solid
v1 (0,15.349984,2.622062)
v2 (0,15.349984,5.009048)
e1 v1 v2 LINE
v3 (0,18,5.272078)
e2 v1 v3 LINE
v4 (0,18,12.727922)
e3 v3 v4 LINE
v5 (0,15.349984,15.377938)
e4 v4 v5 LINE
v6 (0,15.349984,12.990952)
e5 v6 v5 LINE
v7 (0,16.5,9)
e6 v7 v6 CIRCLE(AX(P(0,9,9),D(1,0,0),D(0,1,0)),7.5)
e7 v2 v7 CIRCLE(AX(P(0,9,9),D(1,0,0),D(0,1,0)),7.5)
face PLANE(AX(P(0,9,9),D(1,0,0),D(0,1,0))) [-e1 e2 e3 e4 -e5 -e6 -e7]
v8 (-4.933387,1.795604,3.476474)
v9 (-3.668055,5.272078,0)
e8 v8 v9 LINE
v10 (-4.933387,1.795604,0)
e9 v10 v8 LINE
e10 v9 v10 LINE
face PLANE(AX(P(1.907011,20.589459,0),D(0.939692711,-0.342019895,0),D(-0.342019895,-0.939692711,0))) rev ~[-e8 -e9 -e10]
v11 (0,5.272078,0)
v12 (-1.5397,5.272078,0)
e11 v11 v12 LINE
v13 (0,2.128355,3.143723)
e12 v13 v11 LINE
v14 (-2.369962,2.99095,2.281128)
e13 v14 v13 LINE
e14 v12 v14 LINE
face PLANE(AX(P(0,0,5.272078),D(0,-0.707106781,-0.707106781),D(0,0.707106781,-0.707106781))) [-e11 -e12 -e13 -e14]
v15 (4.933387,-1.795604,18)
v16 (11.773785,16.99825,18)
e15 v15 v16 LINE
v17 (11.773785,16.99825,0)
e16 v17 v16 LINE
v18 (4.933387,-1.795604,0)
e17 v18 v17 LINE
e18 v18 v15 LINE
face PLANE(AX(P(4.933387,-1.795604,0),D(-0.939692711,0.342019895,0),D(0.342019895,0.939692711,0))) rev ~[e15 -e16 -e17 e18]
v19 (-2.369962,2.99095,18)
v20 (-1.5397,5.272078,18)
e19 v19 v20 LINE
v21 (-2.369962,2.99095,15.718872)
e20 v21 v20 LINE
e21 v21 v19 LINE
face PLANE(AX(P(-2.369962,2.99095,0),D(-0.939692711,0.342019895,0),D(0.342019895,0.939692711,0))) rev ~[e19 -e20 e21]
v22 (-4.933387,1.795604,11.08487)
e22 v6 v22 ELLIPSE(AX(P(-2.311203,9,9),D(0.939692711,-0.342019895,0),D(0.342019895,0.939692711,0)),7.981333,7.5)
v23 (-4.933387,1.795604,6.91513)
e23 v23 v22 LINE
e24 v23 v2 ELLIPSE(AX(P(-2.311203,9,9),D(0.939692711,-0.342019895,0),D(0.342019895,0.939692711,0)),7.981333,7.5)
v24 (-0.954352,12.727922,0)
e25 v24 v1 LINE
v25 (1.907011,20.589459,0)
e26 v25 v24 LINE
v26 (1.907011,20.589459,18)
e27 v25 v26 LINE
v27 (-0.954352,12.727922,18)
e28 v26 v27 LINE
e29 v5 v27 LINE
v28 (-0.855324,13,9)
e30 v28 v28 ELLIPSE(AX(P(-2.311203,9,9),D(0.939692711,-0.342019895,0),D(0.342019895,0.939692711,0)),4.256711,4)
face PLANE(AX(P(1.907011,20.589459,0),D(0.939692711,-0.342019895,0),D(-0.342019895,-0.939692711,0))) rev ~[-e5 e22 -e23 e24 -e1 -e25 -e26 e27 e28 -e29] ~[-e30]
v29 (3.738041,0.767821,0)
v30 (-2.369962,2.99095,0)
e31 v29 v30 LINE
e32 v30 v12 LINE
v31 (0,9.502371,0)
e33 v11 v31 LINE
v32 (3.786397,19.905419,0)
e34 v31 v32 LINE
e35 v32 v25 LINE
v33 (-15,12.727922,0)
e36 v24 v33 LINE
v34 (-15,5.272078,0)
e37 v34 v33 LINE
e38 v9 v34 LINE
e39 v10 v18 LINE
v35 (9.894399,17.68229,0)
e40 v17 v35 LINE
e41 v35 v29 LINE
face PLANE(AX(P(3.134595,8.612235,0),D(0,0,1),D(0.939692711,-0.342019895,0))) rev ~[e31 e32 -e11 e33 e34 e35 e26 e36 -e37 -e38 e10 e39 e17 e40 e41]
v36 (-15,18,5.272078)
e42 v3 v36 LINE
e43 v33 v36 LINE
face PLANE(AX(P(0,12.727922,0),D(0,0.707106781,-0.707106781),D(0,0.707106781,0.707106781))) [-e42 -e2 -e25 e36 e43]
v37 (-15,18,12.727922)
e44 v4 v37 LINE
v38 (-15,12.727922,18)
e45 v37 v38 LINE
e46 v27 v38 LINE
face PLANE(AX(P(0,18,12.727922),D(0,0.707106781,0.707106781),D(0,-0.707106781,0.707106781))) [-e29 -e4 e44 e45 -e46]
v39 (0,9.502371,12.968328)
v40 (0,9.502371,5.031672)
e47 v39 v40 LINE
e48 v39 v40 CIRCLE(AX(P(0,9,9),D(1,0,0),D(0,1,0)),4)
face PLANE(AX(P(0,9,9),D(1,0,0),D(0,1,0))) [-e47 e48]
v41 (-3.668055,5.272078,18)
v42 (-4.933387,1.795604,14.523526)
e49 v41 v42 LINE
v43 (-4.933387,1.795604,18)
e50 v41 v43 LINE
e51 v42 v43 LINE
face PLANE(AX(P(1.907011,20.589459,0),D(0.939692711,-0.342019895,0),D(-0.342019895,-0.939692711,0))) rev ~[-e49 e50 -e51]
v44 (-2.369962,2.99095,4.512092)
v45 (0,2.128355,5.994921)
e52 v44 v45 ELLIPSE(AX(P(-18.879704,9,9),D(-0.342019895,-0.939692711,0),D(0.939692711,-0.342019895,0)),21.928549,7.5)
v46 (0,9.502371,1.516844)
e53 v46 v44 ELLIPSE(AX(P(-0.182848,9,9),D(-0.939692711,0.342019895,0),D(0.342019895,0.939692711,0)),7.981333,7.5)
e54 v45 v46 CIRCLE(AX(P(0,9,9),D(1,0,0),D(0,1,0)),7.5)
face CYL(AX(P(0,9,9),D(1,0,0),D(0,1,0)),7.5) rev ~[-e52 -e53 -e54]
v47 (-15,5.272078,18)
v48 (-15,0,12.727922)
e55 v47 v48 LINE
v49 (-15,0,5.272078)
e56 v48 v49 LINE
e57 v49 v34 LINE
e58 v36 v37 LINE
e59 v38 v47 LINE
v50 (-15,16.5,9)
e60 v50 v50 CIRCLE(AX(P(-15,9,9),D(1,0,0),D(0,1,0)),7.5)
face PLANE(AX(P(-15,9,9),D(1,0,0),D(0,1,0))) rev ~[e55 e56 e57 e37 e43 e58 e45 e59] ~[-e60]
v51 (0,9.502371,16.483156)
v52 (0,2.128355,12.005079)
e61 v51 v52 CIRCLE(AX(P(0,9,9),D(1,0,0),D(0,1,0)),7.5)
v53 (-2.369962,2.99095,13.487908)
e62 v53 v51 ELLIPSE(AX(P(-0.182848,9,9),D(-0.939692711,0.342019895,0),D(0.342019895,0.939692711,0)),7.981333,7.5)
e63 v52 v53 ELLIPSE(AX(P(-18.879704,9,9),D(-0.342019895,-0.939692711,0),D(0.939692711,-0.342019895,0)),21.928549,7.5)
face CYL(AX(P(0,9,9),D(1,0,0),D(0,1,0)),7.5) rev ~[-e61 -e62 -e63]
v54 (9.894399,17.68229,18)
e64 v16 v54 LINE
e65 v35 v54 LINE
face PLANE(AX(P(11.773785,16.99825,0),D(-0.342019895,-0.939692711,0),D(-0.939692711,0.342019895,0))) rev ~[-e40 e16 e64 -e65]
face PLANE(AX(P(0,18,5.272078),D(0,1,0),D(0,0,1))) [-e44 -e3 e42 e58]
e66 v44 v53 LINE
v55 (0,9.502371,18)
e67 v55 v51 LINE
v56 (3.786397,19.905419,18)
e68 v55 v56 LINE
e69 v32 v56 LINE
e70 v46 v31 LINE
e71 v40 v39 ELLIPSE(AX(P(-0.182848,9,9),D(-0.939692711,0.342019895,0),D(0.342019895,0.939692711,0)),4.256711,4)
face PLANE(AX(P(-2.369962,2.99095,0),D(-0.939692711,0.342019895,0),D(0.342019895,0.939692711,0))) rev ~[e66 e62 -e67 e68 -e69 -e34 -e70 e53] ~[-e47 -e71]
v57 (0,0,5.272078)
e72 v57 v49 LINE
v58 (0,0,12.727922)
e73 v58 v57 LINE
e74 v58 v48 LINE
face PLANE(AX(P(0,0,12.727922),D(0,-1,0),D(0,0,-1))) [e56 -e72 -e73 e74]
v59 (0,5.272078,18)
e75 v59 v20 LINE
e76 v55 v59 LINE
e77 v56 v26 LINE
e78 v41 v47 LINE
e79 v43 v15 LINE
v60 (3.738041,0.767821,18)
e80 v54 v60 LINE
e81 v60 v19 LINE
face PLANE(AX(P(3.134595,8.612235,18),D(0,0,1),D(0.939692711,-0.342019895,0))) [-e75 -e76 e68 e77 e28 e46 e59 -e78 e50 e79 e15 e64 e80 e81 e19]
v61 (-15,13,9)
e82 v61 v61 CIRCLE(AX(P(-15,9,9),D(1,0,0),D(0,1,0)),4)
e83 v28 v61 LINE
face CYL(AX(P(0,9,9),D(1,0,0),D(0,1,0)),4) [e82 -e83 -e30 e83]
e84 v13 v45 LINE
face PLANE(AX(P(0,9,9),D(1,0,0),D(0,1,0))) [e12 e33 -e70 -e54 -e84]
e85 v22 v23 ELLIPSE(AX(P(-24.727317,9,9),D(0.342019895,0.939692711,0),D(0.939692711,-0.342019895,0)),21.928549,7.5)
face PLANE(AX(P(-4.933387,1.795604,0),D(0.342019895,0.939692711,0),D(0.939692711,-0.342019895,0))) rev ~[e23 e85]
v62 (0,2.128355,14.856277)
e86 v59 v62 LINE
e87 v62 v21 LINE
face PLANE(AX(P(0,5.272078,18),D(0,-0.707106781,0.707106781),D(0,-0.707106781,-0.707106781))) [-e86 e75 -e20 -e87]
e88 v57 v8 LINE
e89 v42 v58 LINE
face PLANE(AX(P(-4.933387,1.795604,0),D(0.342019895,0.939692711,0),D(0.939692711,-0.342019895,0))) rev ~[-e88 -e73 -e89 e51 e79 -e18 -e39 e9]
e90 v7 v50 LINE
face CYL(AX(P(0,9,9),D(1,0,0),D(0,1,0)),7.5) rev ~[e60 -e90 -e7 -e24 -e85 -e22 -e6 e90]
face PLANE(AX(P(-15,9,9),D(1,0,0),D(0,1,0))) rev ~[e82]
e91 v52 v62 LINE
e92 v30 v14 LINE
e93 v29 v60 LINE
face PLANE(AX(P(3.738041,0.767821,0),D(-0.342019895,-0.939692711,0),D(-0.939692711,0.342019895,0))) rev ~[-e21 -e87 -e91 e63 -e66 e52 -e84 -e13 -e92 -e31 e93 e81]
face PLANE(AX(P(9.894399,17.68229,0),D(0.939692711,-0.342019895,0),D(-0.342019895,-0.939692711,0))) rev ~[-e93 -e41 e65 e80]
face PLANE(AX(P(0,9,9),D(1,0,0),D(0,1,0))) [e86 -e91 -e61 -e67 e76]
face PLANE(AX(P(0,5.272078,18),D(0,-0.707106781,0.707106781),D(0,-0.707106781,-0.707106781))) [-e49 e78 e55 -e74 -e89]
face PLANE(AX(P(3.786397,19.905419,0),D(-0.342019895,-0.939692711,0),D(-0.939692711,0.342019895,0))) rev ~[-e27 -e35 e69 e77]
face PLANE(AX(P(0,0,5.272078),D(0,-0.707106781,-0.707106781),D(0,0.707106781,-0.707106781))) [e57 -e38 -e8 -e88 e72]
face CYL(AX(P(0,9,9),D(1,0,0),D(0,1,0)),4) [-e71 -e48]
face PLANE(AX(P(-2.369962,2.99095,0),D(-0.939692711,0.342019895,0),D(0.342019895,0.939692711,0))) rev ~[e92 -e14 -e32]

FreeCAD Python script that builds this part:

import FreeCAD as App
import Part
import Sketcher
Q = App.Units.Quantity


def add_polygon(sketch, points):
    """Adds a closed chain of lines whose ends are joined by coincident constraints."""
    first, n = sketch.GeometryCount, len(points)
    for a, b in zip(points, points[1:] + points[:1]):
        sketch.addGeometry(Part.LineSegment(App.Vector(*a, 0), App.Vector(*b, 0)), False)
    for i in range(n):
        sketch.addConstraint(Sketcher.Constraint("Coincident", first + i, 2, first + (i + 1) % n, 1))

doc = App.newDocument("Part")
body = doc.addObject("PartDesign::Body", "Body")

# Sketch on XY plane
sketch1 = doc.addObject("Sketcher::SketchObject", "Sketch")
body.addObject(sketch1)
sketch1.AttachmentSupport = (doc.XY_Plane, [""])
sketch1.MapMode = "FlatFace"
add_polygon(sketch1, [(1.9, 20.6), (-4.9, 1.8), (4.9, -1.8), (11.8, 17), (9.9, 17.7), (3.7, 0.8), (-2.4, 3), (3.8, 19.9)])  # lines 0-7
sketch1.addConstraint(Sketcher.Constraint("Symmetric", 0, 2, 1, 2, -1, 1))
sketch1.addConstraint(Sketcher.Constraint("Perpendicular", 0, 1))
sketch1.addConstraint(Sketcher.Constraint("Perpendicular", 1, 2))
sketch1.addConstraint(Sketcher.Constraint("Perpendicular", 2, 3))
sketch1.addConstraint(Sketcher.Constraint("Perpendicular", 3, 4))
sketch1.addConstraint(Sketcher.Constraint("Perpendicular", 4, 5))
sketch1.addConstraint(Sketcher.Constraint("Perpendicular", 5, 6))
sketch1.addConstraint(Sketcher.Constraint("Perpendicular", 6, 7))
sketch1.addConstraint(Sketcher.Constraint("Equal", 0, 2))
sketch1.addConstraint(Sketcher.Constraint("Equal", 3, 7))
sketch1.addConstraint(Sketcher.Constraint("Angle", 0, Q("-109.999985 deg")))
sketch1.addConstraint(Sketcher.Constraint("Distance", 0, 20.0))
sketch1.addConstraint(Sketcher.Constraint("Distance", 3, 2.0))
sketch1.addConstraint(Sketcher.Constraint("Distance", 4, 18.0))
sketch1.addConstraint(Sketcher.Constraint("Distance", 1, 10.5))
pad1 = doc.addObject("PartDesign::Pad", "Pad")
body.addObject(pad1)
pad1.Profile = sketch1
pad1.Length = 18

# Sketch on YZ plane
sketch2 = doc.addObject("Sketcher::SketchObject", "Sketch001")
body.addObject(sketch2)
sketch2.AttachmentSupport = (doc.YZ_Plane, [""])
sketch2.MapMode = "FlatFace"
add_polygon(sketch2, [(12.7, 18), (5.3, 18), (0, 12.7), (0, 5.3), (5.3, 0), (12.7, 0), (18, 5.3), (18, 12.7)])  # lines 0-7
sketch2.addGeometry(Part.Circle(App.Vector(9, 9, 0), App.Vector(0, 0, 1), 7.5), False)  # 8
sketch2.addGeometry(Part.Circle(App.Vector(9, 9, 0), App.Vector(0, 0, 1), 4), False)  # 9
sketch2.addConstraint(Sketcher.Constraint("Horizontal", 0))
sketch2.addConstraint(Sketcher.Constraint("Vertical", 2))
sketch2.addConstraint(Sketcher.Constraint("Horizontal", 4))
sketch2.addConstraint(Sketcher.Constraint("Vertical", 6))
sketch2.addConstraint(Sketcher.Constraint("Coincident", 9, 3, 8, 3))
sketch2.addConstraint(Sketcher.Constraint("PointOnObject", 1, 2, -2))
sketch2.addConstraint(Sketcher.Constraint("PointOnObject", 3, 2, -1))
sketch2.addConstraint(Sketcher.Constraint("Perpendicular", 1, 3))
sketch2.addConstraint(Sketcher.Constraint("Perpendicular", 3, 5))
sketch2.addConstraint(Sketcher.Constraint("Perpendicular", 5, 7))
sketch2.addConstraint(Sketcher.Constraint("Horizontal", 2, 2, 5, 2))
sketch2.addConstraint(Sketcher.Constraint("Horizontal", 1, 2, 6, 2))
sketch2.addConstraint(Sketcher.Constraint("Vertical", 0, 2, 3, 2))
sketch2.addConstraint(Sketcher.Constraint("Vertical", 4, 2, 7, 2))
sketch2.addConstraint(Sketcher.Constraint("Equal", 4, 2))
sketch2.addConstraint(Sketcher.Constraint("Diameter", 8, 15.0))
sketch2.addConstraint(Sketcher.Constraint("Diameter", 9, 8.0))
sketch2.addConstraint(Sketcher.Constraint("DistanceX", -1, 1, 8, 3, 9.0))
sketch2.addConstraint(Sketcher.Constraint("DistanceY", -1, 1, 8, 3, 9.0))
sketch2.addConstraint(Sketcher.Constraint("DistanceY", -1, 1, 0, 2, 18.0))
sketch2.addConstraint(Sketcher.Constraint("DistanceX", 0, 2, 0, 1, 7.455844))
pad2 = doc.addObject("PartDesign::Pad", "Pad001")
body.addObject(pad2)
pad2.Profile = sketch2
pad2.Length = 15
pad2.Reversed = True

doc.recompute()
